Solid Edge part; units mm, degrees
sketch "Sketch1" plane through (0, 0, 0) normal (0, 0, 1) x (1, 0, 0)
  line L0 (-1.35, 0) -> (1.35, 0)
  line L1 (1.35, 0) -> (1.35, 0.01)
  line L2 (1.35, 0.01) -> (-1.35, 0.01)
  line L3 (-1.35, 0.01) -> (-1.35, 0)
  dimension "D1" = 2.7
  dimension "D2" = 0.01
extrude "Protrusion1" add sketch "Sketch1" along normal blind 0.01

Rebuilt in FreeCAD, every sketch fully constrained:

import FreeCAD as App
import Part
import Sketcher
from FreeCAD import Vector

doc = App.newDocument("Part")
params = doc.addObject("Spreadsheet::Sheet", "Params")
for row, (alias, value) in enumerate([
    ("sketch1_height", "0.01 mm"),
    ("pad1_length", "0.01 mm"),
], start=1):
    params.set(f"A{row}", alias)
    params.set(f"B{row}", "=" + value)
    params.setAlias(f"B{row}", alias)

body = doc.addObject("PartDesign::Body", "Body")

sketch1 = doc.addObject("Sketcher::SketchObject", "Sketch")
body.addObject(sketch1)
sketch1.AttachmentSupport = (doc.XY_Plane, [""])
sketch1.MapMode = "FlatFace"
sketch1.addGeometry([
    Part.LineSegment(Vector(-1.35, 0.01, 0), Vector(-1.35, 0, 0)),
    Part.LineSegment(Vector(-1.35, 0, 0), Vector(1.35, 0, 0)),
    Part.LineSegment(Vector(1.35, 0, 0), Vector(1.35, 0.01, 0)),
    Part.LineSegment(Vector(1.35, 0.01, 0), Vector(-1.35, 0.01, 0)),
], False)
sketch1.addConstraint([
    Sketcher.Constraint("Coincident", 0, 2, 1, 1),
    Sketcher.Constraint("Coincident", 1, 2, 2, 1),
    Sketcher.Constraint("Coincident", 2, 2, 3, 1),
    Sketcher.Constraint("Coincident", 3, 2, 0, 1),
    Sketcher.Constraint("Vertical", 0),
    Sketcher.Constraint("Horizontal", 1),
    Sketcher.Constraint("Vertical", 2),
    Sketcher.Constraint("Horizontal", 3),
    Sketcher.Constraint("Symmetric", 0, 2, 1, 2, -1, 1),
    Sketcher.Constraint("DistanceX", 0, 2, -1, 1, 1.35),
    Sketcher.Constraint("DistanceY", 0, 2, 0, 1, 0.01),
])
sketch1.setExpression("Constraints[10]", "Params.sketch1_height")
pad1 = doc.addObject("PartDesign::Pad", "Pad")
body.addObject(pad1)
pad1.Profile = sketch1
pad1.setExpression("Length", "Params.pad1_length")

doc.recompute()
